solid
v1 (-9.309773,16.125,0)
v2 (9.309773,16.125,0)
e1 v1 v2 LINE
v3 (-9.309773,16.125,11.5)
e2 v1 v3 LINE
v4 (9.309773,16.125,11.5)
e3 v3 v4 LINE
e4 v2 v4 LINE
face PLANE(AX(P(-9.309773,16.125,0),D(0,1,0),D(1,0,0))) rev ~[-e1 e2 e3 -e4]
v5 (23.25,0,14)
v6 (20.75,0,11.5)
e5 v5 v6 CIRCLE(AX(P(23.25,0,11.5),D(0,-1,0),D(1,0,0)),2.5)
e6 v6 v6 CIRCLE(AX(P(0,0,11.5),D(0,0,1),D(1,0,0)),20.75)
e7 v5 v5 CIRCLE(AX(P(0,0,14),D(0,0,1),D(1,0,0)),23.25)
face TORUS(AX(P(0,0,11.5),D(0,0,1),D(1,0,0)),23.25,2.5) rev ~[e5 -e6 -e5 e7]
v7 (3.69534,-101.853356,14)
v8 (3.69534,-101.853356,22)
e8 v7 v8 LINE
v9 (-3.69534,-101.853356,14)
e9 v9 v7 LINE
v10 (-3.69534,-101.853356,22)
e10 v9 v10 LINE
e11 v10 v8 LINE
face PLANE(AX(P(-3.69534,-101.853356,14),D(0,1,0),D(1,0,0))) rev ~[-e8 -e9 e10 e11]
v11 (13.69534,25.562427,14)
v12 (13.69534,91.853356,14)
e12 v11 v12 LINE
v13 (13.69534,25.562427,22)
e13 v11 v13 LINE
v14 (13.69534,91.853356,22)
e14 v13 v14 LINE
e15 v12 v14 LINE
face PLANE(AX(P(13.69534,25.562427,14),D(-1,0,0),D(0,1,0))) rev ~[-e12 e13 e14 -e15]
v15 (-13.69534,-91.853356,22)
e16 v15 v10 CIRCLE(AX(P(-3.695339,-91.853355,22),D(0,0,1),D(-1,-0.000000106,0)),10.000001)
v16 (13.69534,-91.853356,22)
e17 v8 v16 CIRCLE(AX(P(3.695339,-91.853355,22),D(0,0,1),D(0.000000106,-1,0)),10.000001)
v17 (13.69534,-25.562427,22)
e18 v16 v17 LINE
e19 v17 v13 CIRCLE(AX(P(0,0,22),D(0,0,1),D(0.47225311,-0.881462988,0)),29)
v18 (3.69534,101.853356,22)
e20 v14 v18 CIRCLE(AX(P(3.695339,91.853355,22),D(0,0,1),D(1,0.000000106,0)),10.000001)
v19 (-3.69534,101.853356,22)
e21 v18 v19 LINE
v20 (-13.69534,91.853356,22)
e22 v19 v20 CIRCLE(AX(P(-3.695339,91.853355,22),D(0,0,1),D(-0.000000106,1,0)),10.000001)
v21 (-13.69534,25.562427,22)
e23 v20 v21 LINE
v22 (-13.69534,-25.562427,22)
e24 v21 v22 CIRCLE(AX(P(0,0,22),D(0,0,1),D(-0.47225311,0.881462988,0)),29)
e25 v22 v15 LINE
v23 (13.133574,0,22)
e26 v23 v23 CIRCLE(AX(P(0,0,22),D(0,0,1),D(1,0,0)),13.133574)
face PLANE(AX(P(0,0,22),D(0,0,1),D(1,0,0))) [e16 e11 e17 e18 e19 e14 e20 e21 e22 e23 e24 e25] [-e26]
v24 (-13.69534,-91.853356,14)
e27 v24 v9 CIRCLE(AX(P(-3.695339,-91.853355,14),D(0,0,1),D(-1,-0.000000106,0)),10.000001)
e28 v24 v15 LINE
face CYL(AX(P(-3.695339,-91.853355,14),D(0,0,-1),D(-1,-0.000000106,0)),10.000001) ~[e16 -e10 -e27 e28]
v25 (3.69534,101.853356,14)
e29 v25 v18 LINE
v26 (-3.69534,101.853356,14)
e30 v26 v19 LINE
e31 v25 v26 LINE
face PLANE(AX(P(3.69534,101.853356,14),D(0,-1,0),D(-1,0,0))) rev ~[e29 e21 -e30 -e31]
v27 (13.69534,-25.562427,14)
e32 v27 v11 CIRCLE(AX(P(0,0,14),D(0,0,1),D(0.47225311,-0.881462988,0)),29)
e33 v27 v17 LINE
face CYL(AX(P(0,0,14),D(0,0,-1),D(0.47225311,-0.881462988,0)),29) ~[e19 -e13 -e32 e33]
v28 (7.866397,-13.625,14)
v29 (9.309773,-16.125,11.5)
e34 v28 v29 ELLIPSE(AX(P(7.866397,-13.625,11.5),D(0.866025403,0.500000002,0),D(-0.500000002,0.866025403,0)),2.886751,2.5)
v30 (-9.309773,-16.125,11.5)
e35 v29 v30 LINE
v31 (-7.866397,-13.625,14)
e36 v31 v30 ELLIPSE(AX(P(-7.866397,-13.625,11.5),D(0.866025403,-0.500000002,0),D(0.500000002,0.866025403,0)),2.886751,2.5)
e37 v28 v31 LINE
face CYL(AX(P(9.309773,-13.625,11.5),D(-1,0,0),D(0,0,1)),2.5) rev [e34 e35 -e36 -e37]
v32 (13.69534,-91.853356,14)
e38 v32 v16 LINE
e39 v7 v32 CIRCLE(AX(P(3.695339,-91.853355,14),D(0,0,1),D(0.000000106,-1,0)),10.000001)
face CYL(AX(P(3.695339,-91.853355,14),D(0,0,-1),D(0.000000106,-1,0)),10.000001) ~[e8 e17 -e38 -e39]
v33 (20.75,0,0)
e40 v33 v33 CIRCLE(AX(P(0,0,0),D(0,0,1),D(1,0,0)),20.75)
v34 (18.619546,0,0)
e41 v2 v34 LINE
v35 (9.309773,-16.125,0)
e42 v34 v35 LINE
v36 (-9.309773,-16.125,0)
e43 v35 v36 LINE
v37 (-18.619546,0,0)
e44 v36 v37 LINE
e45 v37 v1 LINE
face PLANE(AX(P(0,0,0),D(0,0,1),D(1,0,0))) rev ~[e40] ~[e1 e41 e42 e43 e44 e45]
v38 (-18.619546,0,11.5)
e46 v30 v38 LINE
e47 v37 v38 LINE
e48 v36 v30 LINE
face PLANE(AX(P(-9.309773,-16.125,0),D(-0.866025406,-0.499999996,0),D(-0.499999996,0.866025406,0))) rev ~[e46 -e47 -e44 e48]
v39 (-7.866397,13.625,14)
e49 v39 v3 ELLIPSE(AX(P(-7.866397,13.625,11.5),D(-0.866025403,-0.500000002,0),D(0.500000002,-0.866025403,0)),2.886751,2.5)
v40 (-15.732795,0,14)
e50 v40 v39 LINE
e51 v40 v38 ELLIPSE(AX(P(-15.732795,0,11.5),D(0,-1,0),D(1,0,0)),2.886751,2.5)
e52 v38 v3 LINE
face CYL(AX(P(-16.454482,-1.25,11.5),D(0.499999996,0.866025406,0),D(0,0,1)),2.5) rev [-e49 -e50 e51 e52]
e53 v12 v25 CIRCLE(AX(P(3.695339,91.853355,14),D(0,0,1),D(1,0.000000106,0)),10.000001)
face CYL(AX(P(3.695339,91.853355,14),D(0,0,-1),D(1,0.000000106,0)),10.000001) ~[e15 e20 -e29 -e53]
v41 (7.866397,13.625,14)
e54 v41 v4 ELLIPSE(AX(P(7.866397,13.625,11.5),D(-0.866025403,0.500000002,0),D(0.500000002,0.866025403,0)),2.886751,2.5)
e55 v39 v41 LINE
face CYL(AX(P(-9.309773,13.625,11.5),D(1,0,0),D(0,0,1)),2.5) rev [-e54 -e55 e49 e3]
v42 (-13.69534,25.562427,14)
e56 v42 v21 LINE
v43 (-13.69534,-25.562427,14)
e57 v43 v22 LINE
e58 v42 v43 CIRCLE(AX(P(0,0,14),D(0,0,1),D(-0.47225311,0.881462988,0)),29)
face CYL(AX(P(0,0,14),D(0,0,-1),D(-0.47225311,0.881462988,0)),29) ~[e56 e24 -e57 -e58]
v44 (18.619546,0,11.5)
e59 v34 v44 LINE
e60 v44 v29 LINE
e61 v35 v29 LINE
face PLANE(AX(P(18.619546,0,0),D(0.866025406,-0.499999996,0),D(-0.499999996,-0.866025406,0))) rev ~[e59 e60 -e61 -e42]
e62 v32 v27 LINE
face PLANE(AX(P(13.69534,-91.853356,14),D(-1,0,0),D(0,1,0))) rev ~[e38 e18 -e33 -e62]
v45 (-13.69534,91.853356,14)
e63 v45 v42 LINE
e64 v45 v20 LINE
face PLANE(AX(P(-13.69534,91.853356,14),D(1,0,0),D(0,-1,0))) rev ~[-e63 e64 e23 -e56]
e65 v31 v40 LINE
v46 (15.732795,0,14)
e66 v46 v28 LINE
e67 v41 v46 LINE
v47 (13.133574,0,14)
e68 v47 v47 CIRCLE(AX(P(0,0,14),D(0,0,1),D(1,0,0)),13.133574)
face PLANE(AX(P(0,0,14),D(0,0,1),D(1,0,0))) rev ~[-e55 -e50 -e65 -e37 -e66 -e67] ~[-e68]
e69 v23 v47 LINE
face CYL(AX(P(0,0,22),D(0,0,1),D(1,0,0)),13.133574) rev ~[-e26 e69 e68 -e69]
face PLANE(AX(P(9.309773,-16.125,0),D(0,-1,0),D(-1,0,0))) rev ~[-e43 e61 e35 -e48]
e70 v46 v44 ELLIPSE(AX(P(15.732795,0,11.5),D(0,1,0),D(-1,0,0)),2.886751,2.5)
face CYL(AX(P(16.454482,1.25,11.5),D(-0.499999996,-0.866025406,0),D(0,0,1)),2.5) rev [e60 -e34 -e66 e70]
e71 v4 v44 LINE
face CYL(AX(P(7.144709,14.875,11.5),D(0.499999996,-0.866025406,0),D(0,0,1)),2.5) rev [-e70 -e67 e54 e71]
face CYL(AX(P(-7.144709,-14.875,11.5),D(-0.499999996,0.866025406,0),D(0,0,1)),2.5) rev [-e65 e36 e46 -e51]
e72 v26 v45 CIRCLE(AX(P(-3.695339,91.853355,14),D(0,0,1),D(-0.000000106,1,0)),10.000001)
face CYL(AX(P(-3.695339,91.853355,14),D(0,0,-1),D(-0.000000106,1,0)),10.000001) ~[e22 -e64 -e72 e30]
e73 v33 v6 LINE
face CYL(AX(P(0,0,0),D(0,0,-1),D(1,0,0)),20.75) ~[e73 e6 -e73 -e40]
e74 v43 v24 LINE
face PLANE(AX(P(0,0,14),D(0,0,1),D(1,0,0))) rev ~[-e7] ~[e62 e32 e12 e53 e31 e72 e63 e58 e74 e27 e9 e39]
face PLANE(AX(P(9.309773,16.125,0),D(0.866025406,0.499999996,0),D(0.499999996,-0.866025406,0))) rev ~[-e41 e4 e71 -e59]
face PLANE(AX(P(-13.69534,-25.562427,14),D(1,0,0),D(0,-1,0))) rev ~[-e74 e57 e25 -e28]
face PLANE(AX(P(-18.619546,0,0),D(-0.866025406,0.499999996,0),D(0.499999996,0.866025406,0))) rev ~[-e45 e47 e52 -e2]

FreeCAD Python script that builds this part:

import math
import FreeCAD as App
import Part
import Sketcher

V = App.Vector
Q = App.Units.Quantity


def edges_at(feature, points):
    """Names of the edges that pass closest to the given points."""
    edges = feature.Shape.Edges
    near = lambda p: min(range(len(edges)), key=lambda i: edges[i].distToShape(Part.Vertex(*p))[0])
    return sorted({f"Edge{near(p) + 1}" for p in points})

doc = App.newDocument("Part")
params = doc.addObject("Spreadsheet::Sheet", "Params")
for row, (alias, value) in enumerate([
    ("sketch1_diameter", "41.5 mm"),
    ("pad1_length", "14 mm"),
    ("sketch2_radius", "29 mm"),
    ("sketch2_radius2", "10.000001 mm"),
    ("pad2_length", "8 mm"),
    ("pocket1_length", "25 mm"),
    ("fillet_radius", "2.5 mm"),
], start=1):
    params.set(f"A{row}", alias)
    params.set(f"B{row}", "=" + value)
    params.setAlias(f"B{row}", alias)

body = doc.addObject("PartDesign::Body", "Body")

# Sketch on XY plane
sketch1 = body.newObject("Sketcher::SketchObject", "Sketch")
sketch1.AttachmentSupport = (doc.getObject("XY_Plane"), [""])
sketch1.MapMode = "FlatFace"
sketch1.addGeometry([
    Part.Circle(V(0, 0, 0), V(0, 0, 1), 21),  # 0
    Part.LineSegment(V(-9, -16, 0), V(-19, 0, 0)),  # 1
    Part.LineSegment(V(-19, 0, 0), V(-9, 16, 0)),  # 2
    Part.LineSegment(V(-9, 16, 0), V(9, 16, 0)),  # 3
    Part.LineSegment(V(9, 16, 0), V(19, 0, 0)),  # 4
    Part.LineSegment(V(19, 0, 0), V(9, -16, 0)),  # 5
    Part.LineSegment(V(9, -16, 0), V(-9, -16, 0)),  # 6
], False)
sketch1.addConstraint([
    Sketcher.Constraint("Coincident", 1, 2, 2, 1),
    Sketcher.Constraint("Coincident", 2, 2, 3, 1),
    Sketcher.Constraint("Coincident", 3, 2, 4, 1),
    Sketcher.Constraint("Coincident", 4, 2, 5, 1),
    Sketcher.Constraint("Coincident", 5, 2, 6, 1),
    Sketcher.Constraint("Coincident", 6, 2, 1, 1),
    Sketcher.Constraint("Horizontal", 3),
    Sketcher.Constraint("Horizontal", 6),
    Sketcher.Constraint("Coincident", 0, 3, -1, 1),
    Sketcher.Constraint("Symmetric", 1, 2, 4, 2, -1, 1),
    Sketcher.Constraint("Symmetric", 2, 2, 5, 2, -1, 1),
    Sketcher.Constraint("PointOnObject", 1, 2, -1),
    Sketcher.Constraint("Parallel", 1, 4),
    Sketcher.Constraint("Vertical", 3, 2, 5, 2),
    Sketcher.Constraint("Diameter", 0, 41.5),
    Sketcher.Constraint("Angle", 1, Q("120 deg")),
    Sketcher.Constraint("DistanceY", 5, 2, 3, 2, 32.25),
    Sketcher.Constraint("DistanceX", 3, 1, 3, 2, 18.619546),
])
sketch1.setExpression("Constraints[14]", "Params.sketch1_diameter")
pad1 = body.newObject("PartDesign::Pad", "Pad")
pad1.Profile = sketch1
pad1.setExpression("Length", "Params.pad1_length")

# Sketch on XY plane
sketch2 = body.newObject("Sketcher::SketchObject", "Sketch001")
sketch2.AttachmentSupport = (doc.getObject("XY_Plane"), [""])
sketch2.MapMode = "FlatFace"
sketch2.AttachmentOffset = App.Placement(V(0, 0, 14), App.Rotation())
sketch2.addGeometry([
    Part.LineSegment(V(-14, 92, 0), V(-14, 26, 0)),  # 0
    Part.ArcOfCircle(Part.Circle(V(0, 0, 0), V(0, 0, 1), 29), math.radians(118), math.radians(242)),  # 1
    Part.LineSegment(V(-14, -26, 0), V(-14, -92, 0)),  # 2
    Part.ArcOfCircle(Part.Circle(V(-4, -92, 0), V(0, 0, 1), 10), math.radians(-180), math.radians(-90)),  # 3
    Part.LineSegment(V(-4, -102, 0), V(4, -102, 0)),  # 4
    Part.ArcOfCircle(Part.Circle(V(4, -92, 0), V(0, 0, 1), 10), math.radians(-90), math.radians(0)),  # 5
    Part.LineSegment(V(14, -92, 0), V(14, -26, 0)),  # 6
    Part.ArcOfCircle(Part.Circle(V(0, 0, 0), V(0, 0, 1), 29), math.radians(-62), math.radians(62)),  # 7
    Part.LineSegment(V(14, 26, 0), V(14, 92, 0)),  # 8
    Part.ArcOfCircle(Part.Circle(V(4, 92, 0), V(0, 0, 1), 10), math.radians(0), math.radians(90)),  # 9
    Part.LineSegment(V(4, 102, 0), V(-4, 102, 0)),  # 10
    Part.ArcOfCircle(Part.Circle(V(-4, 92, 0), V(0, 0, 1), 10), math.radians(90), math.radians(180)),  # 11
], False)
sketch2.addConstraint([
    Sketcher.Constraint("Coincident", 0, 2, 1, 1),
    Sketcher.Constraint("Coincident", 1, 2, 2, 1),
    Sketcher.Constraint("Tangent", 2, 2, 3, 1),
    Sketcher.Constraint("Tangent", 3, 2, 4, 1),
    Sketcher.Constraint("Tangent", 4, 2, 5, 1),
    Sketcher.Constraint("Tangent", 5, 2, 6, 1),
    Sketcher.Constraint("Coincident", 6, 2, 7, 1),
    Sketcher.Constraint("Coincident", 7, 2, 8, 1),
    Sketcher.Constraint("Tangent", 8, 2, 9, 1),
    Sketcher.Constraint("Tangent", 9, 2, 10, 1),
    Sketcher.Constraint("Tangent", 10, 2, 11, 1),
    Sketcher.Constraint("Tangent", 11, 2, 0, 1),
    Sketcher.Constraint("Vertical", 0),
    Sketcher.Constraint("Vertical", 2),
    Sketcher.Constraint("Horizontal", 4),
    Sketcher.Constraint("Vertical", 6),
    Sketcher.Constraint("Vertical", 8),
    Sketcher.Constraint("Horizontal", 10),
    Sketcher.Constraint("Coincident", 1, 3, -1, 1),
    Sketcher.Constraint("Coincident", 7, 3, -1, 1),
    Sketcher.Constraint("Equal", 3, 5),
    Sketcher.Constraint("Equal", 1, 7),
    Sketcher.Constraint("Equal", 5, 9),
    Sketcher.Constraint("Equal", 9, 11),
    Sketcher.Constraint("Symmetric", 3, 3, 9, 3, -1, 1),
    Sketcher.Constraint("Horizontal", 1, 2, 6, 2),
    Sketcher.Constraint("Horizontal", 0, 2, 7, 2),
    Sketcher.Constraint("Radius", 1, 29.0),
    Sketcher.Constraint("Radius", 3, 10.000001),
    Sketcher.Constraint("DistanceX", 4, 1, 4, 2, 7.39068),
    Sketcher.Constraint("DistanceY", 0, 2, 0, 1, 66.290929),
])
sketch2.setExpression("Constraints[27]", "Params.sketch2_radius")
sketch2.setExpression("Constraints[28]", "Params.sketch2_radius2")
pad2 = body.newObject("PartDesign::Pad", "Pad001")
pad2.Profile = sketch2
pad2.setExpression("Length", "Params.pad2_length")

# Sketch on XY plane
sketch3 = body.newObject("Sketcher::SketchObject", "Sketch002")
sketch3.AttachmentSupport = (doc.getObject("XY_Plane"), [""])
sketch3.MapMode = "FlatFace"
sketch3.AttachmentOffset = App.Placement(V(0, 0, 22), App.Rotation())
sketch3.addGeometry(Part.Circle(V(0, 0, 0), V(0, 0, 1), 13), False)
sketch3.addConstraint([
    Sketcher.Constraint("Coincident", 0, 3, -1, 1),
    Sketcher.Constraint("Diameter", 0, 26.267148),
])
pocket1 = body.newObject("PartDesign::Pocket", "Pocket")
pocket1.Profile = sketch3
pocket1.setExpression("Length", "Params.pocket1_length")
doc.recompute()

fillet = body.newObject("PartDesign::Fillet", "Fillet")
fillet.Base = (pocket1, edges_at(pocket1, [
    (0, 16.125, 14),
    (-13.965, 8.062, 14),
    (-13.965, -8.062, 14),
    (0, -16.125, 14),
    (13.965, -8.062, 14),
    (13.965, 8.062, 14),
    (-20.75, 0, 14),
]))
fillet.setExpression("Radius", "Params.fillet_radius")

doc.recompute()
